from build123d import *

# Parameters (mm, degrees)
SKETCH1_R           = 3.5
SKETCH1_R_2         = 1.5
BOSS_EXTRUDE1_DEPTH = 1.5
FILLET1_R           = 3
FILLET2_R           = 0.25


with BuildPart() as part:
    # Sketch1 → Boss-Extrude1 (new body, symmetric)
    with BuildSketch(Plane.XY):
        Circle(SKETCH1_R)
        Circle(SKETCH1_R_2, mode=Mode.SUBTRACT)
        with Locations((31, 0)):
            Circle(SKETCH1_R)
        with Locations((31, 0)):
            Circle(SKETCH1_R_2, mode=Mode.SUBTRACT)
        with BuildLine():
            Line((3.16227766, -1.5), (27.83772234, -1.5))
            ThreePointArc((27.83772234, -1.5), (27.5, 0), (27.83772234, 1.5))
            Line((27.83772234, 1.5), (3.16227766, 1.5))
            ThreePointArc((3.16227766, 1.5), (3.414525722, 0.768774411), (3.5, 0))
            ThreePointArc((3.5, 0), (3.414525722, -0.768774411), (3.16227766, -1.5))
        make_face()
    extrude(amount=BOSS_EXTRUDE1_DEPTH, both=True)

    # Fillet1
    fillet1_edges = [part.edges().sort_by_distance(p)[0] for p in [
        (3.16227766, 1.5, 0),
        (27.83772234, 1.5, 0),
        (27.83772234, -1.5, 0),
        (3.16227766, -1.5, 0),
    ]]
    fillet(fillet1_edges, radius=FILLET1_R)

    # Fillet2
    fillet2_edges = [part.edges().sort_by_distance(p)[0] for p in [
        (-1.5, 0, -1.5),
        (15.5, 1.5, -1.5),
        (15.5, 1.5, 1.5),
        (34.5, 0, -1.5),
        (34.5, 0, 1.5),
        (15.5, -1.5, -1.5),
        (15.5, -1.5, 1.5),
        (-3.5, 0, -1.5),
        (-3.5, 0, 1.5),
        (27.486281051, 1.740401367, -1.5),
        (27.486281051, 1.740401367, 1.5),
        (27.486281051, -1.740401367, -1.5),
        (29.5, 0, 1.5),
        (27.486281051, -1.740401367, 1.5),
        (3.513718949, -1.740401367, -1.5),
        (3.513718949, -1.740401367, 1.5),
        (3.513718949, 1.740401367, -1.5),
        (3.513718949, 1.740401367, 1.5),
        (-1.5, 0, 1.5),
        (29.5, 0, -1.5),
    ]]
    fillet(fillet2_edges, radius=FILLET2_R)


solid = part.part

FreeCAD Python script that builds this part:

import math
import FreeCAD as App
import Part
import Sketcher
Q = App.Units.Quantity


def edges_at(feature, points):
    """Names of the edges that pass closest to the given points."""
    edges = feature.Shape.Edges
    near = lambda p: min(range(len(edges)), key=lambda i: edges[i].distToShape(Part.Vertex(*p))[0])
    return sorted({f"Edge{near(p) + 1}" for p in points})

doc = App.newDocument("Part")
body = doc.addObject("PartDesign::Body", "Body")

# Sketch on XY plane
sketch1 = body.newObject("Sketcher::SketchObject", "Sketch")
sketch1.AttachmentSupport = (doc.getObject("XY_Plane"), [""])
sketch1.MapMode = "FlatFace"
sketch1.addGeometry([
    Part.ArcOfCircle(Part.Circle(App.Vector(0, 0, 0), App.Vector(0, 0, 1), 3.5), math.radians(25.376934), math.radians(334.623066)),  # 0
    Part.LineSegment(App.Vector(3.162278, -1.5, 0), App.Vector(27.837722, -1.5, 0)),  # 1
    Part.ArcOfCircle(Part.Circle(App.Vector(31, 0, 0), App.Vector(0, 0, 1), 3.5), math.radians(-154.623066), math.radians(154.623066)),  # 2
    Part.LineSegment(App.Vector(27.837722, 1.5, 0), App.Vector(3.162278, 1.5, 0)),  # 3
    Part.Circle(App.Vector(0, 0, 0), App.Vector(0, 0, 1), 1.5),  # 4
    Part.Circle(App.Vector(31, 0, 0), App.Vector(0, 0, 1), 1.5),  # 5
], False)
sketch1.addConstraint([
    Sketcher.Constraint("Coincident", 0, 2, 1, 1),
    Sketcher.Constraint("Coincident", 1, 2, 2, 1),
    Sketcher.Constraint("Coincident", 2, 2, 3, 1),
    Sketcher.Constraint("Coincident", 3, 2, 0, 1),
    Sketcher.Constraint("Horizontal", 1),
    Sketcher.Constraint("Horizontal", 3),
    Sketcher.Constraint("Coincident", 0, 3, -1, 1),
    Sketcher.Constraint("Coincident", 4, 3, -1, 1),
    Sketcher.Constraint("Coincident", 5, 3, 2, 3),
    Sketcher.Constraint("Equal", 0, 2),
    Sketcher.Constraint("Equal", 4, 5),
    Sketcher.Constraint("Symmetric", 1, 2, 2, 2, -1),
    Sketcher.Constraint("Diameter", 4, Q("3 mm")),
    Sketcher.Constraint("Radius", 0, Q("3.5 mm")),
    Sketcher.Constraint("DistanceX", -1, 1, 2, 3, Q("31 mm")),
    Sketcher.Constraint("DistanceY", 1, 2, 2, 2, Q("3 mm")),
])
pad1 = body.newObject("PartDesign::Pad", "Pad")
pad1.Profile = sketch1
pad1.Length = 3
pad1.Midplane = True
doc.recompute()

fillet = body.newObject("PartDesign::Fillet", "Fillet")
fillet.Base = (pad1, edges_at(pad1, [
    (3.162, 1.5, 0),
    (27.838, 1.5, 0),
    (27.838, -1.5, 0),
    (3.162, -1.5, 0),
]))
fillet.Radius = 3
doc.recompute()

fillet2 = body.newObject("PartDesign::Fillet", "Fillet001")
fillet2.Base = (fillet, edges_at(fillet, [
    (-1.5, 0, -1.5),
    (15.5, 1.5, -1.5),
    (15.5, 1.5, 1.5),
    (34.5, 0, -1.5),
    (34.5, 0, 1.5),
    (15.5, -1.5, -1.5),
    (15.5, -1.5, 1.5),
    (-3.5, 0, -1.5),
    (-3.5, 0, 1.5),
    (27.486, 1.74, -1.5),
    (27.486, 1.74, 1.5),
    (27.486, -1.74, -1.5),
    (29.5, 0, 1.5),
    (27.486, -1.74, 1.5),
    (3.514, -1.74, -1.5),
    (3.514, -1.74, 1.5),
    (3.514, 1.74, -1.5),
    (3.514, 1.74, 1.5),
    (-1.5, 0, 1.5),
    (29.5, 0, -1.5),
]))
fillet2.Radius = 0.25

doc.recompute()
